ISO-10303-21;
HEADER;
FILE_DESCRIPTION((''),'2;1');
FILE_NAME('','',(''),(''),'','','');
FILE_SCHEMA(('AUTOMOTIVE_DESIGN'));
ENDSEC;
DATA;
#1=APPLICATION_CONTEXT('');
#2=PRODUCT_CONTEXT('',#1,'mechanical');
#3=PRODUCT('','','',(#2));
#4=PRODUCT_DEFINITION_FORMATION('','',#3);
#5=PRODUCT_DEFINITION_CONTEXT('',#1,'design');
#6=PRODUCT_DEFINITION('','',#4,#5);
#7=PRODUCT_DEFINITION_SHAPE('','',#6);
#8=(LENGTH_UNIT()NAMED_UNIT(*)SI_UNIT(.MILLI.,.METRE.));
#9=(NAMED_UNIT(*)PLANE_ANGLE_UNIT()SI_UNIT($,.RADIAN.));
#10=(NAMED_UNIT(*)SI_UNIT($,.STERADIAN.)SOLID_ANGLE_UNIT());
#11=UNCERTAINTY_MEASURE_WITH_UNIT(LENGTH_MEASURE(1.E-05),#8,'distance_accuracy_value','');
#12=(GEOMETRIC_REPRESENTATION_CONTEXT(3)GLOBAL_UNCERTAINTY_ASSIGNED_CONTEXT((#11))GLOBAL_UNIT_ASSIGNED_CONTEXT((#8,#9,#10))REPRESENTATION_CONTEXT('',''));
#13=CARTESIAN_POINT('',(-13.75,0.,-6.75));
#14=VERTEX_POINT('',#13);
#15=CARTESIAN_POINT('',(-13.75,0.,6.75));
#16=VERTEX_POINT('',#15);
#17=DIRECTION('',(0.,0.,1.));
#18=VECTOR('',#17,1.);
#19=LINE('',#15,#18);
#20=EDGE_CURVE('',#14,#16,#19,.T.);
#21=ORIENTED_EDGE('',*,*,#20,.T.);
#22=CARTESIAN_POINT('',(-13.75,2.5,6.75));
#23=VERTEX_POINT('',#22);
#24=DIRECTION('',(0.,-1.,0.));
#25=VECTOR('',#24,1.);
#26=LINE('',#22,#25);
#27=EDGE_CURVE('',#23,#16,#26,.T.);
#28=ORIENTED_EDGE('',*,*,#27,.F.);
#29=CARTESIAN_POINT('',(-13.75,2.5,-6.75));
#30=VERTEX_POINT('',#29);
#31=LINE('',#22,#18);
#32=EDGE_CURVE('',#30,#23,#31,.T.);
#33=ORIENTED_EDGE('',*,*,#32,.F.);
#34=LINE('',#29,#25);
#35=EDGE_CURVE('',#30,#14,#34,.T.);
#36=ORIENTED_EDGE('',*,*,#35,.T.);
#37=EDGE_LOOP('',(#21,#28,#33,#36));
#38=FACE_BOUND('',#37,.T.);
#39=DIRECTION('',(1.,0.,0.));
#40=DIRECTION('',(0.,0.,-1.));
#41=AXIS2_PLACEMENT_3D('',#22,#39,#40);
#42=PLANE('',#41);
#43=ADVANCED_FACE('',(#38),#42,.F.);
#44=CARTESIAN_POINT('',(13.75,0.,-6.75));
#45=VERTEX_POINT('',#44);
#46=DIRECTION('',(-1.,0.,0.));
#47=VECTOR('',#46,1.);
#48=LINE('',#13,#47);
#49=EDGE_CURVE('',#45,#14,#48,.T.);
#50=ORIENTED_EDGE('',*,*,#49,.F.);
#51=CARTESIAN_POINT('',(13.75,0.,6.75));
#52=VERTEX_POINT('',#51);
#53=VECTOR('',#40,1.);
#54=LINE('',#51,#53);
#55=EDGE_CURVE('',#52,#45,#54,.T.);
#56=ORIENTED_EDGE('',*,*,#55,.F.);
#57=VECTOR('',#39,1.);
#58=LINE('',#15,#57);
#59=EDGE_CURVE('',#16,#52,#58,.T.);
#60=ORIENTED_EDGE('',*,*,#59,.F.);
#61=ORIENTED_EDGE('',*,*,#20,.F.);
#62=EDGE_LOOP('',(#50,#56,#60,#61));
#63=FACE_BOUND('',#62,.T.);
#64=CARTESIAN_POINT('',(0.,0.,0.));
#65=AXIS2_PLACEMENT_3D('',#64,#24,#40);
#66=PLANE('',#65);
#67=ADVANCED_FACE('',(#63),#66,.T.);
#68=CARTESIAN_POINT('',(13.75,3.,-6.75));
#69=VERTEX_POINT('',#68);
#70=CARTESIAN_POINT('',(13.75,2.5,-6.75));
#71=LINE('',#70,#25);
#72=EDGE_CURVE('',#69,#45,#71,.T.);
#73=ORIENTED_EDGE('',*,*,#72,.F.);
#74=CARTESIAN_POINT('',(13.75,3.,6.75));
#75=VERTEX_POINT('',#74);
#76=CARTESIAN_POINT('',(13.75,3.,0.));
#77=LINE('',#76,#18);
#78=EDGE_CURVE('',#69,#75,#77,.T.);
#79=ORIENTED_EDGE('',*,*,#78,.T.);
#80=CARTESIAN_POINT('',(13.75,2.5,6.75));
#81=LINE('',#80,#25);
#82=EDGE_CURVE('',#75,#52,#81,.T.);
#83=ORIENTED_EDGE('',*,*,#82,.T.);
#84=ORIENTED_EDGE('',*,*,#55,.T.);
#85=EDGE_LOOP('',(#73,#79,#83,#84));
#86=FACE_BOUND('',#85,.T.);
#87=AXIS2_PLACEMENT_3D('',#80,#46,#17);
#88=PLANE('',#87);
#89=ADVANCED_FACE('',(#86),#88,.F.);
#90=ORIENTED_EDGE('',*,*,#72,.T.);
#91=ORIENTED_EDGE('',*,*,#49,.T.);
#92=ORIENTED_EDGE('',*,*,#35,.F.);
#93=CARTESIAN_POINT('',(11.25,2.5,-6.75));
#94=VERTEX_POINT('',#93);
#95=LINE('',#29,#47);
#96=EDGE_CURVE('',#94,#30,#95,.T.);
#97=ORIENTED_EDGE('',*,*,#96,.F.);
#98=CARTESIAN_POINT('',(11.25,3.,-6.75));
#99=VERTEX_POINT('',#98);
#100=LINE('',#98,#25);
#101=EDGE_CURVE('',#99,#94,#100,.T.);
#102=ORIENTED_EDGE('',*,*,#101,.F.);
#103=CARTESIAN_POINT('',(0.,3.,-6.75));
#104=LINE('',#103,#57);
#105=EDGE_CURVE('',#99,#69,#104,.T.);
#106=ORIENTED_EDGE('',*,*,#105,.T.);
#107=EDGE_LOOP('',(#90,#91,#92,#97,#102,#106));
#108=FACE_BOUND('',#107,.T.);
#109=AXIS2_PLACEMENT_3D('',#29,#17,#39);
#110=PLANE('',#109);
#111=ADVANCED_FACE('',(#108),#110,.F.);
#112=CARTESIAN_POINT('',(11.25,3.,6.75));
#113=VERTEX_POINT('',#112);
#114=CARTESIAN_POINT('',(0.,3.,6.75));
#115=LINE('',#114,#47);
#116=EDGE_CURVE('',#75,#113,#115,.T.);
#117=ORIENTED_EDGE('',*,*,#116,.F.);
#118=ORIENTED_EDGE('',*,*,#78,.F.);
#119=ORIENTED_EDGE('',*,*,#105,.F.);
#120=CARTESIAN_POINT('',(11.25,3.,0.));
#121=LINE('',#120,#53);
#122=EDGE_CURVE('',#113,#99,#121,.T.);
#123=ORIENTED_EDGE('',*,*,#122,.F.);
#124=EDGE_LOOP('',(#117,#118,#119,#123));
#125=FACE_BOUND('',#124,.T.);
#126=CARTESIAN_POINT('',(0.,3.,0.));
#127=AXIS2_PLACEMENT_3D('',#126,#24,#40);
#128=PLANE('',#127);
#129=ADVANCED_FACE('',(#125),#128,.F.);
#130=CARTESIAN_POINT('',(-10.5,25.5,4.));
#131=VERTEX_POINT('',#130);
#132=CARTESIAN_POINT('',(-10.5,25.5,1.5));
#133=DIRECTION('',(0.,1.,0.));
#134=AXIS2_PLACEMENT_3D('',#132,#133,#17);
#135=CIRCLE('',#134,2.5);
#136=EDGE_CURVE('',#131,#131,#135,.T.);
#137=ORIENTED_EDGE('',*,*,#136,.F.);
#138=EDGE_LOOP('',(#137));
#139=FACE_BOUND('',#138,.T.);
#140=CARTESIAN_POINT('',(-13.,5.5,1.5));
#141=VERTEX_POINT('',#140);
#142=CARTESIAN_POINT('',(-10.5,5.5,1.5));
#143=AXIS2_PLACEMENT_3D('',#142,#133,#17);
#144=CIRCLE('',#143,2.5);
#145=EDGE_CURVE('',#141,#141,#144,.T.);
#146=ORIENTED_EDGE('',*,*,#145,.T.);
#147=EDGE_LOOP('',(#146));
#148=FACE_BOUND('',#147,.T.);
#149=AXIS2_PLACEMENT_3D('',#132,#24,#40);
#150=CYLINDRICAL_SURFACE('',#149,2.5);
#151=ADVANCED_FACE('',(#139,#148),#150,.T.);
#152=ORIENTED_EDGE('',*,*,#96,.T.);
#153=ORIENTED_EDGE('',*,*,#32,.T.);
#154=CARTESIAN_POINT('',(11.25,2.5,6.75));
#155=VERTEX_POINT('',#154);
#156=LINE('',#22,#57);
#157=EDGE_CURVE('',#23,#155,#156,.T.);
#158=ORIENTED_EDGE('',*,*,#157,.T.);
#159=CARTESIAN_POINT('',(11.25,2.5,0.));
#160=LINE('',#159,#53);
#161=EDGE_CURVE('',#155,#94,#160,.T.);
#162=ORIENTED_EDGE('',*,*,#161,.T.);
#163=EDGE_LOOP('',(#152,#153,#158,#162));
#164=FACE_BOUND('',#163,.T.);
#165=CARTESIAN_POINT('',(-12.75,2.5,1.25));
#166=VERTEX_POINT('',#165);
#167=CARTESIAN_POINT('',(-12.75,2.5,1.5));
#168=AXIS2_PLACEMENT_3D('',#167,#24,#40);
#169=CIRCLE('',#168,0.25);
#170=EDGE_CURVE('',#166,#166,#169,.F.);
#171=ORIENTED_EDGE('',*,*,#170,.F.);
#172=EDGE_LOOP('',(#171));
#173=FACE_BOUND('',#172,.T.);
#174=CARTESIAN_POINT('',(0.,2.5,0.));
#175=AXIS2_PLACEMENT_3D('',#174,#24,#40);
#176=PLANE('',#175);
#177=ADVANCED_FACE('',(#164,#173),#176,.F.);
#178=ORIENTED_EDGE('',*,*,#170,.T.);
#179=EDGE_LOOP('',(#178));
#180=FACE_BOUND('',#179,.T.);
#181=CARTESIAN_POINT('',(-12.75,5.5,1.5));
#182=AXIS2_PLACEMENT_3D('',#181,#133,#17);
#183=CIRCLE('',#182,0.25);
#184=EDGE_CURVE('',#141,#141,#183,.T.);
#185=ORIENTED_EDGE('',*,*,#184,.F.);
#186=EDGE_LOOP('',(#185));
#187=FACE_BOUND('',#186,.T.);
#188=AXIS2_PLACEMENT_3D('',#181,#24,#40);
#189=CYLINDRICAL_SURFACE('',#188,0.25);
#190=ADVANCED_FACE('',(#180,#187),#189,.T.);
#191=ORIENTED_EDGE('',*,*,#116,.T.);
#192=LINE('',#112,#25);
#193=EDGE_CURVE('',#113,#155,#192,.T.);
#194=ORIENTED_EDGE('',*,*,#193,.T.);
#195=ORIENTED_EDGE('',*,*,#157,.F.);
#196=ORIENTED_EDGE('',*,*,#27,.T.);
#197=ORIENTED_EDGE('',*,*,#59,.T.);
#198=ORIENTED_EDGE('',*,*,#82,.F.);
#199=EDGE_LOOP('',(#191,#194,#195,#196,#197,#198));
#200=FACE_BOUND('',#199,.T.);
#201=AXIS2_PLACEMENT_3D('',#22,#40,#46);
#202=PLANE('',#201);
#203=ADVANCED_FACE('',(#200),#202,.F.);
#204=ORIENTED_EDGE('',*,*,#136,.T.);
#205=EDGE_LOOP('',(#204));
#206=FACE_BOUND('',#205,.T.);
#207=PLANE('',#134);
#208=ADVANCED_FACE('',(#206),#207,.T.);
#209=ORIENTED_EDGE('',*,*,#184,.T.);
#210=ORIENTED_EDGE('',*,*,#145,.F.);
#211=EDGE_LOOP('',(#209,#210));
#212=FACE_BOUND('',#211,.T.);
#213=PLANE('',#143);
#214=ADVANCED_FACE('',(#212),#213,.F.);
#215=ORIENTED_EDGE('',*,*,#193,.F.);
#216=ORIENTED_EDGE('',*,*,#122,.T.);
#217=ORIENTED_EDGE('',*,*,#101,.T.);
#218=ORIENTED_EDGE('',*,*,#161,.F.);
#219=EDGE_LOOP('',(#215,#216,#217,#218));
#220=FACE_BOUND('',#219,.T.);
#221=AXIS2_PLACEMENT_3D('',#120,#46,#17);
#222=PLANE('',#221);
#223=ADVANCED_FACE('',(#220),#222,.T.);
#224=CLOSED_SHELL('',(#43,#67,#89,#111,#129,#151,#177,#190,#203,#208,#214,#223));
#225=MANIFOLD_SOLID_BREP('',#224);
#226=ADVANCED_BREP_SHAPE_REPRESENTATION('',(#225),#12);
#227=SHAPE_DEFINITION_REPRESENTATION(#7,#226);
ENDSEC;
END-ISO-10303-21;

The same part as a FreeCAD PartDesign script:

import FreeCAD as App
import Part
import Sketcher
from FreeCAD import Vector
Q = App.Units.Quantity

doc = App.newDocument("Part")
body = doc.addObject("PartDesign::Body", "Body")

# Sketch on XZ plane
sketch1 = body.newObject("Sketcher::SketchObject", "Sketch")
sketch1.AttachmentSupport = (doc.getObject("XZ_Plane"), [""])
sketch1.MapMode = "FlatFace"
sketch1.addGeometry([
    Part.LineSegment(Vector(-13.75, -6.75, 0), Vector(-13.75, 6.75, 0)),
    Part.LineSegment(Vector(-13.75, 6.75, 0), Vector(13.75, 6.75, 0)),
    Part.LineSegment(Vector(13.75, 6.75, 0), Vector(13.75, -6.75, 0)),
    Part.LineSegment(Vector(13.75, -6.75, 0), Vector(-13.75, -6.75, 0)),
], False)
sketch1.addConstraint([
    Sketcher.Constraint("Coincident", 0, 2, 1, 1),
    Sketcher.Constraint("Coincident", 1, 2, 2, 1),
    Sketcher.Constraint("Coincident", 2, 2, 3, 1),
    Sketcher.Constraint("Coincident", 3, 2, 0, 1),
    Sketcher.Constraint("Vertical", 0),
    Sketcher.Constraint("Horizontal", 1),
    Sketcher.Constraint("Vertical", 2),
    Sketcher.Constraint("Horizontal", 3),
    Sketcher.Constraint("Symmetric", 0, 2, 2, 2, -1, 1),
    Sketcher.Constraint("DistanceX", 1, 1, 1, 2, Q("27.5 mm")),
    Sketcher.Constraint("DistanceY", 0, 1, 0, 2, Q("13.5 mm")),
])
pad1 = body.newObject("PartDesign::Pad", "Pad")
pad1.Profile = sketch1
pad1.Length = 2.5
pad1.Reversed = True

# Sketch on XZ plane
sketch2 = body.newObject("Sketcher::SketchObject", "Sketch001")
sketch2.AttachmentSupport = (doc.getObject("XZ_Plane"), [""])
sketch2.MapMode = "FlatFace"
sketch2.addGeometry([
    Part.LineSegment(Vector(11.25, 6.75, 0), Vector(11.25, -6.75, 0)),
    Part.LineSegment(Vector(11.25, -6.75, 0), Vector(13.75, -6.75, 0)),
    Part.LineSegment(Vector(13.75, -6.75, 0), Vector(13.75, 6.75, 0)),
    Part.LineSegment(Vector(13.75, 6.75, 0), Vector(11.25, 6.75, 0)),
], False)
sketch2.addConstraint([
    Sketcher.Constraint("Coincident", 0, 2, 1, 1),
    Sketcher.Constraint("Coincident", 1, 2, 2, 1),
    Sketcher.Constraint("Coincident", 2, 2, 3, 1),
    Sketcher.Constraint("Coincident", 3, 2, 0, 1),
    Sketcher.Constraint("Vertical", 0),
    Sketcher.Constraint("Horizontal", 1),
    Sketcher.Constraint("Vertical", 2),
    Sketcher.Constraint("Horizontal", 3),
    Sketcher.Constraint("DistanceX", 1, 1, 1, 2, Q("2.5 mm")),
    Sketcher.Constraint("DistanceY", 0, 2, 0, 1, Q("13.5 mm")),
    Sketcher.Constraint("DistanceX", -1, 1, 0, 2, Q("11.25 mm")),
    Sketcher.Constraint("DistanceY", 0, 2, -1, 1, Q("6.75 mm")),
])
pad2 = body.newObject("PartDesign::Pad", "Pad001")
pad2.Profile = sketch2
pad2.Length = 3
pad2.Reversed = True

# Sketch on XZ plane
sketch3 = body.newObject("Sketcher::SketchObject", "Sketch002")
sketch3.AttachmentSupport = (doc.getObject("XZ_Plane"), [""])
sketch3.MapMode = "FlatFace"
sketch3.AttachmentOffset = App.Placement(Vector(0, 0, -2.5), App.Rotation())
sketch3.addGeometry(Part.Circle(Vector(-12.75, 1.5, 0), Vector(0, 0, 1), 0.25), False)
sketch3.addConstraint([
    Sketcher.Constraint("Diameter", 0, Q("0.5 mm")),
    Sketcher.Constraint("DistanceY", -1, 1, 0, 3, Q("1.5 mm")),
    Sketcher.Constraint("DistanceX", 0, 3, -1, 1, Q("12.75 mm")),
])
pad3 = body.newObject("PartDesign::Pad", "Pad002")
pad3.Profile = sketch3
pad3.Length = 3
pad3.Reversed = True

# Sketch on XZ plane
sketch4 = body.newObject("Sketcher::SketchObject", "Sketch003")
sketch4.AttachmentSupport = (doc.getObject("XZ_Plane"), [""])
sketch4.MapMode = "FlatFace"
sketch4.AttachmentOffset = App.Placement(Vector(0, 0, -5.5), App.Rotation())
sketch4.addGeometry(Part.Circle(Vector(-10.5, 1.5, 0), Vector(0, 0, 1), 2.5), False)
sketch4.addConstraint([
    Sketcher.Constraint("Diameter", 0, Q("5 mm")),
    Sketcher.Constraint("DistanceX", 0, 3, -1, 1, Q("10.5 mm")),
    Sketcher.Constraint("DistanceY", -1, 1, 0, 3, Q("1.5 mm")),
])
pad4 = body.newObject("PartDesign::Pad", "Pad003")
pad4.Profile = sketch4
pad4.Length = 20
pad4.Reversed = True

doc.recompute()
